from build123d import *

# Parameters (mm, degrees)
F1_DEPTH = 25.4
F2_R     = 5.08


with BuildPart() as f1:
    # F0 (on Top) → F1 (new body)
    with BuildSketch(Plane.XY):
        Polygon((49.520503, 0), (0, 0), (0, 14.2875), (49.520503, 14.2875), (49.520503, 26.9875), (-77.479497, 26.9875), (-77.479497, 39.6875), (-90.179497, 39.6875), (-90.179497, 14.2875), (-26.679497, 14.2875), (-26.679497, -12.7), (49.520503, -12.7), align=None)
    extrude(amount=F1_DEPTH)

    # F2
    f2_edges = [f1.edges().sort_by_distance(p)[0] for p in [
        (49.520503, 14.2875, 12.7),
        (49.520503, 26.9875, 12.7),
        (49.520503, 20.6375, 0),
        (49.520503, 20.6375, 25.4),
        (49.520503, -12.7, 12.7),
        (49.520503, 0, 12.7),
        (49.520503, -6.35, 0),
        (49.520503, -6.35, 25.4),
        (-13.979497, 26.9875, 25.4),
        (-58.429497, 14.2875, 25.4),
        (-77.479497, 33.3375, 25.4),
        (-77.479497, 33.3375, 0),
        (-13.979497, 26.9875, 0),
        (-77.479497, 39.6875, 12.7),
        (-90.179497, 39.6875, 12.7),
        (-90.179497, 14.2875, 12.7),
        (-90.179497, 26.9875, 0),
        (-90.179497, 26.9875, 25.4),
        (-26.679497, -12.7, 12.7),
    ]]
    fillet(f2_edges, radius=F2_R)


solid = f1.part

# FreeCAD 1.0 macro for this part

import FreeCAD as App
import Part
import Sketcher
from FreeCAD import Vector
Q = App.Units.Quantity


def edges_at(feature, points):
    """Names of the edges that pass closest to the given points."""
    edges = feature.Shape.Edges
    near = lambda p: min(range(len(edges)), key=lambda i: edges[i].distToShape(Part.Vertex(*p))[0])
    return sorted({f"Edge{near(p) + 1}" for p in points})


def add_polygon(sketch, points):
    """Adds a closed chain of lines whose ends are joined by coincident constraints."""
    first, n = sketch.GeometryCount, len(points)
    for a, b in zip(points, points[1:] + points[:1]):
        sketch.addGeometry(Part.LineSegment(App.Vector(*a, 0), App.Vector(*b, 0)), False)
    for i in range(n):
        sketch.addConstraint(Sketcher.Constraint("Coincident", first + i, 2, first + (i + 1) % n, 1))

doc = App.newDocument("Part")
body = doc.addObject("PartDesign::Body", "Body")

# Sketch on XY plane
sketch1 = body.newObject("Sketcher::SketchObject", "Sketch")
sketch1.AttachmentSupport = (doc.getObject("XY_Plane"), [""])
sketch1.MapMode = "FlatFace"
add_polygon(sketch1, [(49.520503, 0), (0, 0), (0, 14.2875), (49.520503, 14.2875), (49.520503, 26.9875), (-77.479497, 26.9875), (-77.479497, 39.6875), (-90.179497, 39.6875), (-90.179497, 14.2875), (-26.679497, 14.2875), (-26.679497, -12.7), (49.520503, -12.7)])  # lines 0-11
sketch1.addConstraint(Sketcher.Constraint("Horizontal", 0))
sketch1.addConstraint(Sketcher.Constraint("Vertical", 1))
sketch1.addConstraint(Sketcher.Constraint("Horizontal", 2))
sketch1.addConstraint(Sketcher.Constraint("Vertical", 3))
sketch1.addConstraint(Sketcher.Constraint("Horizontal", 4))
sketch1.addConstraint(Sketcher.Constraint("Vertical", 5))
sketch1.addConstraint(Sketcher.Constraint("Horizontal", 6))
sketch1.addConstraint(Sketcher.Constraint("Vertical", 7))
sketch1.addConstraint(Sketcher.Constraint("Horizontal", 8))
sketch1.addConstraint(Sketcher.Constraint("Vertical", 9))
sketch1.addConstraint(Sketcher.Constraint("Horizontal", 10))
sketch1.addConstraint(Sketcher.Constraint("Vertical", 11))
sketch1.addConstraint(Sketcher.Constraint("Coincident", 0, 2, -1, 1))
sketch1.addConstraint(Sketcher.Constraint("Horizontal", 2, 2, 7, 2))
sketch1.addConstraint(Sketcher.Constraint("Vertical", 3, 2, 10, 2))
sketch1.addConstraint(Sketcher.Constraint("Equal", 6, 3))
sketch1.addConstraint(Sketcher.Constraint("Equal", 3, 5))
sketch1.addConstraint(Sketcher.Constraint("Equal", 5, 11))
sketch1.addConstraint(Sketcher.Constraint("DistanceX", 4, 2, 4, 1, Q("5 in")))
sketch1.addConstraint(Sketcher.Constraint("DistanceX", 10, 1, 10, 2, Q("3 in")))
sketch1.addConstraint(Sketcher.Constraint("DistanceY", 7, 2, 7, 1, Q("1 in")))
sketch1.addConstraint(Sketcher.Constraint("DistanceY", 1, 1, 1, 2, Q("0.5625 in")))
sketch1.addConstraint(Sketcher.Constraint("DistanceX", 0, 2, 0, 1, Q("49.520503 mm")))
pad1 = body.newObject("PartDesign::Pad", "Pad")
pad1.Profile = sketch1
pad1.Length = Q("1 in")
doc.recompute()

fillet = body.newObject("PartDesign::Fillet", "Fillet")
fillet.Base = (pad1, edges_at(pad1, [
    (49.521, 14.287, 12.7),
    (49.521, 26.988, 12.7),
    (49.521, 20.637, 0),
    (49.521, 20.637, 25.4),
    (49.521, -12.7, 12.7),
    (49.521, 0, 12.7),
    (49.521, -6.35, 0),
    (49.521, -6.35, 25.4),
    (-13.979, 26.988, 25.4),
    (-58.429, 14.287, 25.4),
    (-77.479, 33.337, 25.4),
    (-77.479, 33.337, 0),
    (-13.979, 26.988, 0),
    (-77.479, 39.688, 12.7),
    (-90.179, 39.688, 12.7),
    (-90.179, 14.287, 12.7),
    (-90.179, 26.988, 0),
    (-90.179, 26.988, 25.4),
    (-26.679, -12.7, 12.7),
]))
fillet.Radius = Q("0.2 in")

doc.recompute()
